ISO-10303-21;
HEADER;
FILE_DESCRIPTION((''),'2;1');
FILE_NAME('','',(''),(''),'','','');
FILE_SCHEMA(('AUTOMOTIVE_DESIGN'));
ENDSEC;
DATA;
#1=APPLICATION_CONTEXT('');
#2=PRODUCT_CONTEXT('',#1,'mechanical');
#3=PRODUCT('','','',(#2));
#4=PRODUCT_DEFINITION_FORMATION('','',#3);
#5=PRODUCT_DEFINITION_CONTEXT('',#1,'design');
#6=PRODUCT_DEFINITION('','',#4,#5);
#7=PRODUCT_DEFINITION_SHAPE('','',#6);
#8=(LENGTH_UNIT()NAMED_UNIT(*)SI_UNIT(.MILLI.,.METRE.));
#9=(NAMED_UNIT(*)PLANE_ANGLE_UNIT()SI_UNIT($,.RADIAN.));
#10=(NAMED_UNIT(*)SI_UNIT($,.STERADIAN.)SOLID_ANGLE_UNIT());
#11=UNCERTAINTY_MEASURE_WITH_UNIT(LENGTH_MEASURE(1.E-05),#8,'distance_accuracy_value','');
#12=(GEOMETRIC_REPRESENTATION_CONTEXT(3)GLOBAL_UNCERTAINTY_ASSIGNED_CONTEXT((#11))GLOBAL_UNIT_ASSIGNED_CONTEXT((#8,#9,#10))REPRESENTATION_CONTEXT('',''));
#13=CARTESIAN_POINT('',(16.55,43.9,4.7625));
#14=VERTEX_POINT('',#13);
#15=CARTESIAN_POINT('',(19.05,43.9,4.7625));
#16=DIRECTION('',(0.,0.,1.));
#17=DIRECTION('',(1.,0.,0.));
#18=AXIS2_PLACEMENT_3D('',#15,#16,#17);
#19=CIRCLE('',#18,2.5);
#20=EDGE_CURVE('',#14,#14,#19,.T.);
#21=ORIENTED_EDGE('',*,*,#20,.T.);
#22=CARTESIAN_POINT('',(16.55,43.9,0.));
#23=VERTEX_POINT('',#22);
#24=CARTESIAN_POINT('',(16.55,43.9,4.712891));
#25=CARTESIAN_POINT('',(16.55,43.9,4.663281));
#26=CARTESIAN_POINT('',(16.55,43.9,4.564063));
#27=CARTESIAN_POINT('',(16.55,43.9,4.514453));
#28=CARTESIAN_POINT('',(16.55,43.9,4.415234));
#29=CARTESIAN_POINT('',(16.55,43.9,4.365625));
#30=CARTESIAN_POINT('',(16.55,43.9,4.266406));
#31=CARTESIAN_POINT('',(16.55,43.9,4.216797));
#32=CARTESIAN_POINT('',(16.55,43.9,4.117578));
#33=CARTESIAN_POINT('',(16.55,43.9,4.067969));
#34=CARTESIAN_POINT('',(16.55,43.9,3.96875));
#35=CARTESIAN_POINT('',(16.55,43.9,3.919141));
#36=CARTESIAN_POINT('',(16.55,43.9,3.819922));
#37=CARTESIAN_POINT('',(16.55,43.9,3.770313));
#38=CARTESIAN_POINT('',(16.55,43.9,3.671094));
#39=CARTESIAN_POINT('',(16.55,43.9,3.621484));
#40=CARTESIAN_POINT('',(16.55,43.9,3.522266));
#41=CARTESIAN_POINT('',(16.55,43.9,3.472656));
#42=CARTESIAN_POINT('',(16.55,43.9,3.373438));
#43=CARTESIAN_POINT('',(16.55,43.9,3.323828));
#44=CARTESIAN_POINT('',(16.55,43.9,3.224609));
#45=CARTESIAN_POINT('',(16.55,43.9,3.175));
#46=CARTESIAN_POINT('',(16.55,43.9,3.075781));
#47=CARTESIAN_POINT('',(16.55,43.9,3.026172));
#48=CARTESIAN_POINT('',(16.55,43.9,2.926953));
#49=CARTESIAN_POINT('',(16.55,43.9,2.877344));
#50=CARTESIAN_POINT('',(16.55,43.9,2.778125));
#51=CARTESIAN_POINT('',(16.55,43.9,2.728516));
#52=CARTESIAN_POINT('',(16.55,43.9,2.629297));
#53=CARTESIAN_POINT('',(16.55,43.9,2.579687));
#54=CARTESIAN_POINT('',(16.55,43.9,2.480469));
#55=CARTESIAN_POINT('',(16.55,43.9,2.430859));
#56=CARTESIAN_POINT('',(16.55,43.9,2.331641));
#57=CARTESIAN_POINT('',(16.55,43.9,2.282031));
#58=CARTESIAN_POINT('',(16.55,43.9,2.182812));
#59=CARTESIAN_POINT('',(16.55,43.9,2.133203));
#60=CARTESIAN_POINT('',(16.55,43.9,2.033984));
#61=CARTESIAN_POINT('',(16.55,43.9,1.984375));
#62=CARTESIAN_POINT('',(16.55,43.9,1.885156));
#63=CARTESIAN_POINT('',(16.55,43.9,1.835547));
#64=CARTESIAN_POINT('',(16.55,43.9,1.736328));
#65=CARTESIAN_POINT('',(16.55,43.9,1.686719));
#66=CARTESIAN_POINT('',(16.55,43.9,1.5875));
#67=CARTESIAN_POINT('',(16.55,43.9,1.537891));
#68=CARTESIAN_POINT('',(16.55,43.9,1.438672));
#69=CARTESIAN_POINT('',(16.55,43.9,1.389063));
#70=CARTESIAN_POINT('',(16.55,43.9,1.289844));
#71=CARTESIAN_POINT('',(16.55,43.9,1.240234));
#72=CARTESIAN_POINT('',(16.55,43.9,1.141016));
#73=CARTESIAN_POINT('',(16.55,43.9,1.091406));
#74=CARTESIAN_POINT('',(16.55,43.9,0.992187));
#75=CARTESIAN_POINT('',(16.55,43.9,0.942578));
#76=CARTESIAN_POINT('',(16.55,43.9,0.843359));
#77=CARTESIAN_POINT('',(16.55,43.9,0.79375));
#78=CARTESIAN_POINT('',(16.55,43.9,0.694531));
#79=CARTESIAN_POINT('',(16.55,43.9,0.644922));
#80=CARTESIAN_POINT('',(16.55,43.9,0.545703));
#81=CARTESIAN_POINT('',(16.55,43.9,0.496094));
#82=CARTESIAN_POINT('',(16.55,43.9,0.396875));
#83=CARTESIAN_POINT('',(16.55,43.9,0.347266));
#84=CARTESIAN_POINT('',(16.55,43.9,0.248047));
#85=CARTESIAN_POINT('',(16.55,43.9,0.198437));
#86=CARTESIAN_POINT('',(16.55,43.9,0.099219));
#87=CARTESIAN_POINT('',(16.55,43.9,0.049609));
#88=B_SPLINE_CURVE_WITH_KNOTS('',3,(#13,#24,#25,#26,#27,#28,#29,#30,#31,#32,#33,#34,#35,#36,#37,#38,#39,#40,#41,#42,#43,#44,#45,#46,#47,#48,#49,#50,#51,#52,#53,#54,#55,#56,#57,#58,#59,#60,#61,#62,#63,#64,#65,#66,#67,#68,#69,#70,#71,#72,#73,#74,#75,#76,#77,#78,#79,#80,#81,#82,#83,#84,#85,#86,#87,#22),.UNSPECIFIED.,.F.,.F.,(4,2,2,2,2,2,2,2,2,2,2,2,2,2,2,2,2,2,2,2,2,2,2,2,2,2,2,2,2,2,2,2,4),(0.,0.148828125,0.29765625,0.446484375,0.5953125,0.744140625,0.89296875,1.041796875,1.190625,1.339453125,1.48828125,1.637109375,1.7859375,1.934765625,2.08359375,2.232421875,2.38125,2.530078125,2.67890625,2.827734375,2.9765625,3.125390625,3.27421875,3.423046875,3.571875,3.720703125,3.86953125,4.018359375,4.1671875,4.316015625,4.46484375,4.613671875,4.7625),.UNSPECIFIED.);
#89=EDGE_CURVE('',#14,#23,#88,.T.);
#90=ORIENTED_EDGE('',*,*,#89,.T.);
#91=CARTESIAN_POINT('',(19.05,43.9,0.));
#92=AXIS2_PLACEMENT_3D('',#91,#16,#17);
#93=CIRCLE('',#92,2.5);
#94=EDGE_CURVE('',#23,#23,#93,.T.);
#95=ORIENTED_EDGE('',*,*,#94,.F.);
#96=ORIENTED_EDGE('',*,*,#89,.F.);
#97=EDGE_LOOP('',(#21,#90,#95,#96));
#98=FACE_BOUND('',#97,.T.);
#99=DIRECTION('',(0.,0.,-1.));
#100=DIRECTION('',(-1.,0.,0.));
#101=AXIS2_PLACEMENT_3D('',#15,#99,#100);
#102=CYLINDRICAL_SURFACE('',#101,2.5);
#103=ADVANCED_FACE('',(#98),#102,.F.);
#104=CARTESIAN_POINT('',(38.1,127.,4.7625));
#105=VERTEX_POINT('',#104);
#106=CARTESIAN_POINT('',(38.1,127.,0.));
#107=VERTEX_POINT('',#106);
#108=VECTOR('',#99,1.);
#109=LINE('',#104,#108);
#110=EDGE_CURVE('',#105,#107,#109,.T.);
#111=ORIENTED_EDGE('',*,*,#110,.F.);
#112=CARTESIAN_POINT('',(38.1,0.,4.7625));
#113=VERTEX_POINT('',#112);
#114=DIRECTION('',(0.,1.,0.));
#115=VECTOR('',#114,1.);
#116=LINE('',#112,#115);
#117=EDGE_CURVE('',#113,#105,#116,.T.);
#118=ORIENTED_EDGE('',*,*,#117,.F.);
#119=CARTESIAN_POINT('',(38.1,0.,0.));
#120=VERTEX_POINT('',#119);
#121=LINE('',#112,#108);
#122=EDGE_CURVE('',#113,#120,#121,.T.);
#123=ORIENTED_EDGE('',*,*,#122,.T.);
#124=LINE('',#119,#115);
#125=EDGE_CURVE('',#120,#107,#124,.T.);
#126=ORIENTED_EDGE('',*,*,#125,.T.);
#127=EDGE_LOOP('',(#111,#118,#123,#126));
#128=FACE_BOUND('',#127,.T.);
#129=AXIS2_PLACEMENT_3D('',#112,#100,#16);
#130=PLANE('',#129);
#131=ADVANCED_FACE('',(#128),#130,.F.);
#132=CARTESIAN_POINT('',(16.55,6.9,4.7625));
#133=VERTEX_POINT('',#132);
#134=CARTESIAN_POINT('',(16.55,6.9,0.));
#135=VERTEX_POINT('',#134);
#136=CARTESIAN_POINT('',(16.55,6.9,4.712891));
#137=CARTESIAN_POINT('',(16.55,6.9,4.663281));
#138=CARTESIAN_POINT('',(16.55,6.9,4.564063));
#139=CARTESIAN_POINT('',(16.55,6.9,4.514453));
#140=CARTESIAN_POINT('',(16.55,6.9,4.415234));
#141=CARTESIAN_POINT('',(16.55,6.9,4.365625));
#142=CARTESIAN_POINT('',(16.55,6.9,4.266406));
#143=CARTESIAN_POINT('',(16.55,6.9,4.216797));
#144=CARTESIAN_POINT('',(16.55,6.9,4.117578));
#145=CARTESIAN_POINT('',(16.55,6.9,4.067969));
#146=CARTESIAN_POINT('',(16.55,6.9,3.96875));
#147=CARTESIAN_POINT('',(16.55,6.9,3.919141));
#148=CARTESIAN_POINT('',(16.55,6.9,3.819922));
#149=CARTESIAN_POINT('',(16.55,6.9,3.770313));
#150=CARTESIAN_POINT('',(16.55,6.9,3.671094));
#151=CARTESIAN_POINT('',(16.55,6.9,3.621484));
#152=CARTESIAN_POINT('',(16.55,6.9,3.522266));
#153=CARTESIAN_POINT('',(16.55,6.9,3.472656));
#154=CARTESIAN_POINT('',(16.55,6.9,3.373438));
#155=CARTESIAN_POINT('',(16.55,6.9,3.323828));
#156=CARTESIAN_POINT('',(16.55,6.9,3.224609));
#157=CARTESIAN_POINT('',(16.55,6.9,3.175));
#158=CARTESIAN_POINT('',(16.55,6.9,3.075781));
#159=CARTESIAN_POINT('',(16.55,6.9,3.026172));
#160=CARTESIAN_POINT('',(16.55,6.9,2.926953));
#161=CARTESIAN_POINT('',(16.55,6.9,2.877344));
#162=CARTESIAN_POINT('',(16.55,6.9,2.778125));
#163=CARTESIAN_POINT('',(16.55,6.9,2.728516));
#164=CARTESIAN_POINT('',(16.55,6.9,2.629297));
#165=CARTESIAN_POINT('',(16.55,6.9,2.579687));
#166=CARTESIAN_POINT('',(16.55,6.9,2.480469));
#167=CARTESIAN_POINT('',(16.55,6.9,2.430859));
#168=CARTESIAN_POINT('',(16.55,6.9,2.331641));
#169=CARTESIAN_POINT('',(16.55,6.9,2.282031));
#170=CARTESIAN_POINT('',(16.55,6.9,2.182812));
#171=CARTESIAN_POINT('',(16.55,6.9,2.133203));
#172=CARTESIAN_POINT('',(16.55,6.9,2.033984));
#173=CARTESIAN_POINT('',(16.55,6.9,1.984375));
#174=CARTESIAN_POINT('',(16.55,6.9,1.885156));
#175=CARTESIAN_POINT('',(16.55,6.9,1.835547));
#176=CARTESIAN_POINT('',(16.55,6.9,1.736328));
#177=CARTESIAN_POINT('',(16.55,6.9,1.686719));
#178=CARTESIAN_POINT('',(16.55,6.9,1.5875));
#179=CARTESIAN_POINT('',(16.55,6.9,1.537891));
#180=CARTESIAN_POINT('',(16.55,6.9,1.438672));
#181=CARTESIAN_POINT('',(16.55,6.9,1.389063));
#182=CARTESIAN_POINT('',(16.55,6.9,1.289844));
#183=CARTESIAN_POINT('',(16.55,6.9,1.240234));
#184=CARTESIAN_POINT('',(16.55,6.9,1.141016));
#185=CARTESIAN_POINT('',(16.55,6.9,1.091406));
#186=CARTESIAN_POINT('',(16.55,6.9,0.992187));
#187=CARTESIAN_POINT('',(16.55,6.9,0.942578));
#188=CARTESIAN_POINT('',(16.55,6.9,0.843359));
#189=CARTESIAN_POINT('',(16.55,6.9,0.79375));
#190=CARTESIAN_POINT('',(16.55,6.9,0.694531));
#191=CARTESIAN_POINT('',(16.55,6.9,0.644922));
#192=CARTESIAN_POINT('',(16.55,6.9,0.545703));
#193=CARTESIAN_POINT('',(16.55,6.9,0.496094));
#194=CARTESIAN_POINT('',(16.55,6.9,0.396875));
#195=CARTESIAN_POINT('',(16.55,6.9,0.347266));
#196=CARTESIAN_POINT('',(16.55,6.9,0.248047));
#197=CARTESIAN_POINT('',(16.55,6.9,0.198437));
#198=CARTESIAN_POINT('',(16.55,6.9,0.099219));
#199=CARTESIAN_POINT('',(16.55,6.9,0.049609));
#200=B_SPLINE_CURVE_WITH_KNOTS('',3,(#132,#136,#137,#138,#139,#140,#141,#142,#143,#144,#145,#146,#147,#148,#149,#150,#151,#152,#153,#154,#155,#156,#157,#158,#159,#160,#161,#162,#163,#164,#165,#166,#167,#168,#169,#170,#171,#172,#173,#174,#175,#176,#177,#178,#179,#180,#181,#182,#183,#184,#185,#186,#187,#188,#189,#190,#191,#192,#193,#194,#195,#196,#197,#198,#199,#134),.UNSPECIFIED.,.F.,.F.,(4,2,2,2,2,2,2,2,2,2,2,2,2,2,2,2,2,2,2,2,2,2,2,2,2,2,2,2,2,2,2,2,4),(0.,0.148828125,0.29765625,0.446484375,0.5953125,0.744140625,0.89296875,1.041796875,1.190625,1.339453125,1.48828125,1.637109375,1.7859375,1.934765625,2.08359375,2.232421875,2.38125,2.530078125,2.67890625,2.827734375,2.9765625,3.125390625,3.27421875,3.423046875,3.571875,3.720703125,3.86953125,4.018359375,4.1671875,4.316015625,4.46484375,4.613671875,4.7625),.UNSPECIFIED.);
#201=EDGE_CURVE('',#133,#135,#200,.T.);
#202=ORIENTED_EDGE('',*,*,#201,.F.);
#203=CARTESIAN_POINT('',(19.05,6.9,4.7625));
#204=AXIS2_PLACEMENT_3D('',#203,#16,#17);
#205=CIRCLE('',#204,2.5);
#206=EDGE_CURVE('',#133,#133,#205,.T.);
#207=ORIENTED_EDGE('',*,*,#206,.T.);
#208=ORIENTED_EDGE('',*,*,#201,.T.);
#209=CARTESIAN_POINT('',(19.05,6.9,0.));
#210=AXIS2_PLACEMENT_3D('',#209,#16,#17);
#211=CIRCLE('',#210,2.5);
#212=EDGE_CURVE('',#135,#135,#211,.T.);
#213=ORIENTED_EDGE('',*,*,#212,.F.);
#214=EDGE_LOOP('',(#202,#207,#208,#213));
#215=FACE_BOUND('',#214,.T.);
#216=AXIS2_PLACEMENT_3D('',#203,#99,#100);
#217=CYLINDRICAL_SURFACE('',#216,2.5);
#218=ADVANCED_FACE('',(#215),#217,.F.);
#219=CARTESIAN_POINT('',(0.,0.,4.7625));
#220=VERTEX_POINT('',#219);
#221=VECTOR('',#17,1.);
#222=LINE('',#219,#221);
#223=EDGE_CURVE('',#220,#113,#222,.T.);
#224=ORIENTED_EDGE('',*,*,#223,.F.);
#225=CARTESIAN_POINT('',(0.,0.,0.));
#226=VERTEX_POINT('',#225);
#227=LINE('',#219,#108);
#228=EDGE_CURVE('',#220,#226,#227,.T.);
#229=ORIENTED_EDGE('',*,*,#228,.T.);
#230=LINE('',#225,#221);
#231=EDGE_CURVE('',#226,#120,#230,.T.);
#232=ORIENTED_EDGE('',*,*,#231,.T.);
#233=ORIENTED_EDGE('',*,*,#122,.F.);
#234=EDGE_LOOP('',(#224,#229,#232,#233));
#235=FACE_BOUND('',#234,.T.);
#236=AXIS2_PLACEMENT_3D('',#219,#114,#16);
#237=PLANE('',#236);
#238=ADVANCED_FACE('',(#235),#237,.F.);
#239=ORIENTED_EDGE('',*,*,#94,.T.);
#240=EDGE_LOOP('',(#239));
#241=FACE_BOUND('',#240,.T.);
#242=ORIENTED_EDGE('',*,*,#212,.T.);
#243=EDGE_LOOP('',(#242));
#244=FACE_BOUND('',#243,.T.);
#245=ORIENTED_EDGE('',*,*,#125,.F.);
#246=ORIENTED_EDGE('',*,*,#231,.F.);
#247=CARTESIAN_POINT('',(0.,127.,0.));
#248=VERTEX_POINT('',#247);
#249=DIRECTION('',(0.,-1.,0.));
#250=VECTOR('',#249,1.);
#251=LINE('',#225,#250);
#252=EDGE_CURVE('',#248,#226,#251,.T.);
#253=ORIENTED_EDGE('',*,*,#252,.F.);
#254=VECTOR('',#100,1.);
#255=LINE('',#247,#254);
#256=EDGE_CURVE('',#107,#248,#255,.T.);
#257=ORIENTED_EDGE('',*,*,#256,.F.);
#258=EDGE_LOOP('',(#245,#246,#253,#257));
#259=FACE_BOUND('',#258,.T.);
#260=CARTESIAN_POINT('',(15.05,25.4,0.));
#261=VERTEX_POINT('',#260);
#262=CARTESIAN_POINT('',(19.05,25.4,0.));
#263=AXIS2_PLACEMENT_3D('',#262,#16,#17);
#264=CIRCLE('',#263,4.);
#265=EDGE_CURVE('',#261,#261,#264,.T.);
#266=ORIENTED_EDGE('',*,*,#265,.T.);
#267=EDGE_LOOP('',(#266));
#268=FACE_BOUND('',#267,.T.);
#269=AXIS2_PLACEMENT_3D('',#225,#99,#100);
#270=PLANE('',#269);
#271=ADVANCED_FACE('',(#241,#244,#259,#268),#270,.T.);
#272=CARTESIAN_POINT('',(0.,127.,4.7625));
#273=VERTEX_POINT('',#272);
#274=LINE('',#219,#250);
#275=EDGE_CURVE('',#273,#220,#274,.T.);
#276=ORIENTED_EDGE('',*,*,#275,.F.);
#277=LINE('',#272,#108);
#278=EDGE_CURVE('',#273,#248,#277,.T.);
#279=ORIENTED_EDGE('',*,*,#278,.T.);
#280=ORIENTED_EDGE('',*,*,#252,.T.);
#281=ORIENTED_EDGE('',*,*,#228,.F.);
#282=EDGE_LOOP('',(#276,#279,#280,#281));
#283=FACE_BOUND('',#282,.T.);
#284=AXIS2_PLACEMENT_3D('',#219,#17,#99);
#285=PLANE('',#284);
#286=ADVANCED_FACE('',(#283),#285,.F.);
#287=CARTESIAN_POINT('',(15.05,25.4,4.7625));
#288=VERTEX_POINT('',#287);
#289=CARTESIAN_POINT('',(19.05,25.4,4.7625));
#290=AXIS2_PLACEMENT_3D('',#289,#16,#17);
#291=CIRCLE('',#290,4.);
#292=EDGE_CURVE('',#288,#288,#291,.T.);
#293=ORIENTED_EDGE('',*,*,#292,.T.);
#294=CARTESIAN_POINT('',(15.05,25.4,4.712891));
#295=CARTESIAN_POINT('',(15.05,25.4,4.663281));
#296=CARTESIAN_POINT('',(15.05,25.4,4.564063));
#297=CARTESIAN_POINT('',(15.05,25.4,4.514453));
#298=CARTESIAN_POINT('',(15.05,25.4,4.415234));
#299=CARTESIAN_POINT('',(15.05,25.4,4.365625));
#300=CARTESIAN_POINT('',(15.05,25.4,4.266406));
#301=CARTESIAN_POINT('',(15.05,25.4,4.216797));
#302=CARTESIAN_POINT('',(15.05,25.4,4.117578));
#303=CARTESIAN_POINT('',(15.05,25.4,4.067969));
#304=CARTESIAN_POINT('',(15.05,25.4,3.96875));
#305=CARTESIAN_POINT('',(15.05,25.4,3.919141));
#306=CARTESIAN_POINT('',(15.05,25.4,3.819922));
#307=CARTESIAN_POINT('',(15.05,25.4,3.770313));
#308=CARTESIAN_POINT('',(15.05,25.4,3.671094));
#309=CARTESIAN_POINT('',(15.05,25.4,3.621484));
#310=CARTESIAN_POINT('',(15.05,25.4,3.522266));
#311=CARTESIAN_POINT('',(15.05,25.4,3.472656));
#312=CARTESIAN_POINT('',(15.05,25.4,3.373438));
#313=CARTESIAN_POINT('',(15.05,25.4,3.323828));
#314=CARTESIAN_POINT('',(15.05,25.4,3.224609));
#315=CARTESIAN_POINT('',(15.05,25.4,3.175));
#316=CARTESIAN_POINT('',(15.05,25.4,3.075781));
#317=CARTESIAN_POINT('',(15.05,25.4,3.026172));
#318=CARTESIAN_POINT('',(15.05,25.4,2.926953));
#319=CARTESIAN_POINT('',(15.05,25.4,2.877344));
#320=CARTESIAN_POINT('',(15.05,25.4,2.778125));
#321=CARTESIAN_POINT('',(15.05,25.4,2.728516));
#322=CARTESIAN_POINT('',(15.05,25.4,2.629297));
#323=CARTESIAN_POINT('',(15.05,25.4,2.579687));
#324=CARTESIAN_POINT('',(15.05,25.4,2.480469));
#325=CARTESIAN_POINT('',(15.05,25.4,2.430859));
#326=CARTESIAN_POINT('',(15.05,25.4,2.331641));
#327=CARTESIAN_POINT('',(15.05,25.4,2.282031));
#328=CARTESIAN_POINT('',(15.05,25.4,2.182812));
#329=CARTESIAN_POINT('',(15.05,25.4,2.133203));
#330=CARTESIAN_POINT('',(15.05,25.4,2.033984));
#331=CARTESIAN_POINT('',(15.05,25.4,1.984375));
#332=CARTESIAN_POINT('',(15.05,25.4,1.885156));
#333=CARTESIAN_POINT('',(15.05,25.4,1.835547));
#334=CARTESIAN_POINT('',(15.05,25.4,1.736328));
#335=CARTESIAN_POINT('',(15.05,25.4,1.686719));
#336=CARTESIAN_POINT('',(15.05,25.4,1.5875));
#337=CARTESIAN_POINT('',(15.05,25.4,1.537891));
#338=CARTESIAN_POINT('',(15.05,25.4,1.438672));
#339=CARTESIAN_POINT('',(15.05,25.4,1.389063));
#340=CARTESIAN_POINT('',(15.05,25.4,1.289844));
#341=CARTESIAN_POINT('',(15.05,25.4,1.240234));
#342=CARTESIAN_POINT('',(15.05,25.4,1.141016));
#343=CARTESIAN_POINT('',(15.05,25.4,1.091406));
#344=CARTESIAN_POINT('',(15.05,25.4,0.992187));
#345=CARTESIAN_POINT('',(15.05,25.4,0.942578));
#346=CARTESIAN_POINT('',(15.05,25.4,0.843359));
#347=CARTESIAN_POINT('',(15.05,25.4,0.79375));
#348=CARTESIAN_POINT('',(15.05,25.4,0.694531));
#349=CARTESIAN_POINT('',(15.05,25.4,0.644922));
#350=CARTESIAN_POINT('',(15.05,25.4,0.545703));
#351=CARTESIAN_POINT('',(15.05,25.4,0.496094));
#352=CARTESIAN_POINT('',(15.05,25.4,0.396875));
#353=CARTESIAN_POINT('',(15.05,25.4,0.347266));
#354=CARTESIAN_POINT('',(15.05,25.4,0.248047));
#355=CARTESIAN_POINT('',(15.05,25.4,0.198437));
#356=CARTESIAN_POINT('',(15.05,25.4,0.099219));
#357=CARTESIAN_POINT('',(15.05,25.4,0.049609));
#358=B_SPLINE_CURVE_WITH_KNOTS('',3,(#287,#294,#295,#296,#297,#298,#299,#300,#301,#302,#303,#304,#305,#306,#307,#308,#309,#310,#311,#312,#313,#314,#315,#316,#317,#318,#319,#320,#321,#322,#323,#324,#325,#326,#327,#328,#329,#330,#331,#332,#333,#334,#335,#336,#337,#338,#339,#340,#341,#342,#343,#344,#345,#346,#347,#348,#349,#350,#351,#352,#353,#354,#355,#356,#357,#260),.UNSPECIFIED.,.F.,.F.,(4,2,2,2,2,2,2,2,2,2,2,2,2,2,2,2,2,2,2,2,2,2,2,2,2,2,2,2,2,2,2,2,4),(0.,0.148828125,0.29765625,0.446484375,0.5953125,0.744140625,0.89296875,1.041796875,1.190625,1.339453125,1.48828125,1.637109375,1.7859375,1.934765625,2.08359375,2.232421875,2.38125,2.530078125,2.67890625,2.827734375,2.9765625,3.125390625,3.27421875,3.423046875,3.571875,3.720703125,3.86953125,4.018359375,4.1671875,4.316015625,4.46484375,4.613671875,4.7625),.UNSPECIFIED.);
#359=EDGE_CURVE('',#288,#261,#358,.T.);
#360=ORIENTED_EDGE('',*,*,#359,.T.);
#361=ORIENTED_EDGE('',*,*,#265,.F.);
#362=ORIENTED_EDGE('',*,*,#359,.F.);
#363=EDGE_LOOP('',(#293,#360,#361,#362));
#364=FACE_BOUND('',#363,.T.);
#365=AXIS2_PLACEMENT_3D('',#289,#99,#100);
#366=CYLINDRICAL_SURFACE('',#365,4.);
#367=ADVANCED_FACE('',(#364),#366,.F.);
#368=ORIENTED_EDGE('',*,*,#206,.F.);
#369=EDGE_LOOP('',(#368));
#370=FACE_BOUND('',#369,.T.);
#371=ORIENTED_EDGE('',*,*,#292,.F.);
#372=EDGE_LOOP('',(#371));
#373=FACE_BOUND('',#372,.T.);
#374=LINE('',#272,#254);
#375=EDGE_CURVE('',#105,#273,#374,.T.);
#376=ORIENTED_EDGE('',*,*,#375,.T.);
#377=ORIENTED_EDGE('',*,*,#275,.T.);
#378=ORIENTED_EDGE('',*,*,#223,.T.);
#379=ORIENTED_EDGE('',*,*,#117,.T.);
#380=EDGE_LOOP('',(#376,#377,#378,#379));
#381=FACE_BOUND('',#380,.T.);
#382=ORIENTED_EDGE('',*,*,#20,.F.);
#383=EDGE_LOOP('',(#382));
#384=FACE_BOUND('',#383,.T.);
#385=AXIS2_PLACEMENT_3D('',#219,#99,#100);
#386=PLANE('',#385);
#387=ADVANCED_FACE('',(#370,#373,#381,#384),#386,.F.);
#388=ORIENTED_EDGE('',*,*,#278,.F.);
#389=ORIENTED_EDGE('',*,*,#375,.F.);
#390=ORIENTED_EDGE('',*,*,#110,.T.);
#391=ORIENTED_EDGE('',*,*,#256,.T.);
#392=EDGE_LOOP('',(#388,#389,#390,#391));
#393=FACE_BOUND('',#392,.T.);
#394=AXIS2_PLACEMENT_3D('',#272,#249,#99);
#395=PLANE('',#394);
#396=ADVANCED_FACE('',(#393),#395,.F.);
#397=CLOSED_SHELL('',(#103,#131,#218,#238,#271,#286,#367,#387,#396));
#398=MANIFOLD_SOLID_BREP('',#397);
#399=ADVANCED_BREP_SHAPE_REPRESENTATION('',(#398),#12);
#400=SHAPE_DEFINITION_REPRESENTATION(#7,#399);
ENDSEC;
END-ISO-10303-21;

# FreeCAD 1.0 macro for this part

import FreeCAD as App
import Part
import Sketcher
from FreeCAD import Vector
Q = App.Units.Quantity

doc = App.newDocument("Part")
body = doc.addObject("PartDesign::Body", "Body")

sketch1 = doc.addObject("Sketcher::SketchObject", "Sketch")
body.addObject(sketch1)
sketch1.AttachmentSupport = (doc.XY_Plane, [""])
sketch1.MapMode = "FlatFace"
sketch1.addGeometry([
    Part.LineSegment(Vector(0, 127, 0), Vector(0, 0, 0)),
    Part.LineSegment(Vector(0, 0, 0), Vector(38.1, 0, 0)),
    Part.LineSegment(Vector(38.1, 0, 0), Vector(38.1, 127, 0)),
    Part.LineSegment(Vector(38.1, 127, 0), Vector(0, 127, 0)),
    Part.Circle(Vector(19.1, 6.9, 0), Vector(0, 0, 1), 2.5),
    Part.Circle(Vector(19.1, 25.4, 0), Vector(0, 0, 1), 4),
    Part.Circle(Vector(19.1, 43.9, 0), Vector(0, 0, 1), 2.5),
], False)
sketch1.addConstraint([
    Sketcher.Constraint("Coincident", 0, 2, 1, 1),
    Sketcher.Constraint("Coincident", 1, 2, 2, 1),
    Sketcher.Constraint("Coincident", 2, 2, 3, 1),
    Sketcher.Constraint("Coincident", 3, 2, 0, 1),
    Sketcher.Constraint("Vertical", 0),
    Sketcher.Constraint("Horizontal", 1),
    Sketcher.Constraint("Vertical", 2),
    Sketcher.Constraint("Horizontal", 3),
    Sketcher.Constraint("Coincident", 0, 2, -1, 1),
    Sketcher.Constraint("Equal", 4, 6),
    Sketcher.Constraint("Vertical", 4, 3, 5, 3),
    Sketcher.Constraint("Vertical", 5, 3, 6, 3),
    Sketcher.Constraint("DistanceY", 0, 2, 0, 1, Q("5 in")),
    Sketcher.Constraint("DistanceX", 1, 1, 1, 2, Q("1.5 in")),
    Sketcher.Constraint("DistanceY", -1, 1, 5, 3, Q("1 in")),
    Sketcher.Constraint("Diameter", 4, Q("5 mm")),
    Sketcher.Constraint("Diameter", 5, Q("8 mm")),
    Sketcher.Constraint("DistanceX", -1, 1, 4, 3, Q("0.75 in")),
    Sketcher.Constraint("DistanceY", -1, 1, 4, 3, Q("6.9 mm")),
    Sketcher.Constraint("DistanceY", -1, 1, 6, 3, Q("43.9 mm")),
])
pad1 = doc.addObject("PartDesign::Pad", "Pad")
body.addObject(pad1)
pad1.Profile = sketch1
pad1.Length = Q("0.1875 in")

doc.recompute()
